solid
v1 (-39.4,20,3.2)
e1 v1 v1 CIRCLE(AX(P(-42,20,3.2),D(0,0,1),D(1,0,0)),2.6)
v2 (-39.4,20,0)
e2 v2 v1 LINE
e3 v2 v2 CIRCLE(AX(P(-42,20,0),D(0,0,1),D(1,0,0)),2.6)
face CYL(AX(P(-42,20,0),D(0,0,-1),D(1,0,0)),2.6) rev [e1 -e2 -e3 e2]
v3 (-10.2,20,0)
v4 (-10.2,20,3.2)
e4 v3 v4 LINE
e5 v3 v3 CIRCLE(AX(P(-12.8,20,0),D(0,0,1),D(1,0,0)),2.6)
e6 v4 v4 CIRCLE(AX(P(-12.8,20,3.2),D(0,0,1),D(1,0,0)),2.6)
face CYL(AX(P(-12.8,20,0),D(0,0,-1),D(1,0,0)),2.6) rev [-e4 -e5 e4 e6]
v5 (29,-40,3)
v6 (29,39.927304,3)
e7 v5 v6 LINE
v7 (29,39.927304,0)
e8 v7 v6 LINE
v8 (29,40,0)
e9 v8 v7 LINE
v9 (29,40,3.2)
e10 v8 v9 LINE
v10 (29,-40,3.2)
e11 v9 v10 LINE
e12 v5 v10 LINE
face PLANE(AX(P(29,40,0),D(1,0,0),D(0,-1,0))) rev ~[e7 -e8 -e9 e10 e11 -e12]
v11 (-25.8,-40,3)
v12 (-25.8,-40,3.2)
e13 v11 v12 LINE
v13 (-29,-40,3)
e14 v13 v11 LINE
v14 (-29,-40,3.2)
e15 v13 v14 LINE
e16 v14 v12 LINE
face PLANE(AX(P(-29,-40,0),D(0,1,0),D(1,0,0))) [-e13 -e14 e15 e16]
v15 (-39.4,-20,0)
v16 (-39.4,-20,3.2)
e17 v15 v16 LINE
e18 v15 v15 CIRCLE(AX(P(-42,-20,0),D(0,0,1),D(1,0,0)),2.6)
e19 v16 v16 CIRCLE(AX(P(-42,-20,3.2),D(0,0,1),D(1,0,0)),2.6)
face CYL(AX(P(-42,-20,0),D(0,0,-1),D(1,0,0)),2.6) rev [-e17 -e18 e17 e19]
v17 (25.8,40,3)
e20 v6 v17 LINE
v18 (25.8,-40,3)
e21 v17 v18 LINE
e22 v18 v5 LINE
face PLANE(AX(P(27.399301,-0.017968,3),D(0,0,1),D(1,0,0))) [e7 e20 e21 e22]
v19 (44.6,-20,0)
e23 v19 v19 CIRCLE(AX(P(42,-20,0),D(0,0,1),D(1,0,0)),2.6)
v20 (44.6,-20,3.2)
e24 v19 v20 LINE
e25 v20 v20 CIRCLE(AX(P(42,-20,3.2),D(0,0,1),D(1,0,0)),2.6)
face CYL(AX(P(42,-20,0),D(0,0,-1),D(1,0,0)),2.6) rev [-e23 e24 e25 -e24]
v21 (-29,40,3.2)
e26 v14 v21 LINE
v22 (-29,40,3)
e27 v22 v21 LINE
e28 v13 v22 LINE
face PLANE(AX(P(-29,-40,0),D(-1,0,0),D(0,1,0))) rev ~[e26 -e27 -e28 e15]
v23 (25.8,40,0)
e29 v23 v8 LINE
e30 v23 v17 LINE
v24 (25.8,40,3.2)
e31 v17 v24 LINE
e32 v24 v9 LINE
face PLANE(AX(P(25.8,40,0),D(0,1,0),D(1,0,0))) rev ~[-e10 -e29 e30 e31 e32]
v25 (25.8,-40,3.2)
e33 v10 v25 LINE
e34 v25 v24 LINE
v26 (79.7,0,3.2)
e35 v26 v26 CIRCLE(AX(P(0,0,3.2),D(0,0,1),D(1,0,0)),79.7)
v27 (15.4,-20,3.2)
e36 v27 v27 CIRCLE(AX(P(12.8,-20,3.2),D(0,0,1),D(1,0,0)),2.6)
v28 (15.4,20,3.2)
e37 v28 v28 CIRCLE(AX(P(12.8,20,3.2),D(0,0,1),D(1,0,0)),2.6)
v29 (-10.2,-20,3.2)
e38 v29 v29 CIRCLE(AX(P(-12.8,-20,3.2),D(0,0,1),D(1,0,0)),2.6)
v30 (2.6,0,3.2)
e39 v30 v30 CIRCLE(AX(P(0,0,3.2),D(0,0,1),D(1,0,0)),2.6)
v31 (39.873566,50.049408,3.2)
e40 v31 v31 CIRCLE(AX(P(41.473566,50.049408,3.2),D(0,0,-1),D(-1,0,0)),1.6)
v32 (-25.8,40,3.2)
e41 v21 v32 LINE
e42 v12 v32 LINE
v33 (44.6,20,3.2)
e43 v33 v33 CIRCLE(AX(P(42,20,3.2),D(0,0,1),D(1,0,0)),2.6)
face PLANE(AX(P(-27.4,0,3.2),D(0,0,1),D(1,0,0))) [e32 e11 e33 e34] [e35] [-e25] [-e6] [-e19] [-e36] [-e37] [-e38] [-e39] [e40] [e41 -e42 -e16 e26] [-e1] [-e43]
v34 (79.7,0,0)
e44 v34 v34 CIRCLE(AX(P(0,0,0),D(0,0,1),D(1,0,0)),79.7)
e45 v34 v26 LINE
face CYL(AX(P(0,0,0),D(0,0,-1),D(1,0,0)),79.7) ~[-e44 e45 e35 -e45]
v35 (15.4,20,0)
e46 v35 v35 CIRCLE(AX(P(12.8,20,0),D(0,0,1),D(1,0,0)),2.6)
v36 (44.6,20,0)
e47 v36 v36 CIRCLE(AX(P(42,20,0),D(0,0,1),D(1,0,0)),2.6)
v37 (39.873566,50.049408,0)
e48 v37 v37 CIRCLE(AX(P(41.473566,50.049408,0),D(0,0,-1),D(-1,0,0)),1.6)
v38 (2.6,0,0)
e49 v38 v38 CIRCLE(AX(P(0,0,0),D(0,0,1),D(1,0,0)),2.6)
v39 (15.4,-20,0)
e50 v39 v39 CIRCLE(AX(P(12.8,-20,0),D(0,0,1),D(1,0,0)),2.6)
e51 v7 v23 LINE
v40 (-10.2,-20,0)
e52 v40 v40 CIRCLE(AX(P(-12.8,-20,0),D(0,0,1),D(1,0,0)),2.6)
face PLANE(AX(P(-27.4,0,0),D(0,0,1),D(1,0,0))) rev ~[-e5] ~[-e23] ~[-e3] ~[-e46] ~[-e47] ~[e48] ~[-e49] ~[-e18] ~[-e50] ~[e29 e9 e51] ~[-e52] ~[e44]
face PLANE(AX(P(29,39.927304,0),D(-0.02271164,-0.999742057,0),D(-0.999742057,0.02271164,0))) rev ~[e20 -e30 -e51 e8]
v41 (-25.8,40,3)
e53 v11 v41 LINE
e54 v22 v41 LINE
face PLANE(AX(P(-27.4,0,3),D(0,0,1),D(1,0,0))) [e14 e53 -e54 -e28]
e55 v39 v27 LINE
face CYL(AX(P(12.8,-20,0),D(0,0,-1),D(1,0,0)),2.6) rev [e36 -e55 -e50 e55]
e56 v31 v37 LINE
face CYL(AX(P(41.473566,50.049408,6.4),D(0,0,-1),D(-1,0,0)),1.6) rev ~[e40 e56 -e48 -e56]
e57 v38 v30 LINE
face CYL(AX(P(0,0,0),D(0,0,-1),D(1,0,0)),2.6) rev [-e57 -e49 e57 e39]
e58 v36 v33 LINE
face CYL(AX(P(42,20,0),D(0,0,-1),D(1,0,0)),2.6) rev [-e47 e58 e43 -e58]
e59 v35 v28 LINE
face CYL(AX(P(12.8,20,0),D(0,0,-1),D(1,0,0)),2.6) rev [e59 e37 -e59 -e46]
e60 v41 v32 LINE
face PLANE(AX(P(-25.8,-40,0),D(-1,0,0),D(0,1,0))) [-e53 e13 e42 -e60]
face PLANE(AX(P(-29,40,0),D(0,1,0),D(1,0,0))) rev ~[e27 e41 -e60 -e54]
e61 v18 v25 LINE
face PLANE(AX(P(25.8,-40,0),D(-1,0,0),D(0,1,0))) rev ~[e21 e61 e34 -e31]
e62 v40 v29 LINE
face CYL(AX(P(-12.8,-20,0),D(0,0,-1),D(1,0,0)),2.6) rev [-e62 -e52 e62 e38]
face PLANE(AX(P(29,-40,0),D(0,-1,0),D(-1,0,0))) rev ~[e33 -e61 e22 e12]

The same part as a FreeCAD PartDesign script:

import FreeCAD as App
import Part
import Sketcher


def add_polygon(sketch, points):
    """Adds a closed chain of lines whose ends are joined by coincident constraints."""
    first, n = sketch.GeometryCount, len(points)
    for a, b in zip(points, points[1:] + points[:1]):
        sketch.addGeometry(Part.LineSegment(App.Vector(*a, 0), App.Vector(*b, 0)), False)
    for i in range(n):
        sketch.addConstraint(Sketcher.Constraint("Coincident", first + i, 2, first + (i + 1) % n, 1))

doc = App.newDocument("Part")
body = doc.addObject("PartDesign::Body", "Body")

# Sketch on XY plane
sketch1 = doc.addObject("Sketcher::SketchObject", "Sketch")
body.addObject(sketch1)
sketch1.AttachmentSupport = (doc.XY_Plane, [""])
sketch1.MapMode = "FlatFace"
sketch1.addGeometry(Part.Circle(App.Vector(0, 0, 0), App.Vector(0, 0, 1), 79.7), False)  # 0
sketch1.addGeometry(Part.Circle(App.Vector(-42, -20, 0), App.Vector(0, 0, 1), 2.6), False)  # 1
sketch1.addGeometry(Part.Circle(App.Vector(-12.8, -20, 0), App.Vector(0, 0, 1), 2.6), False)  # 2
sketch1.addGeometry(Part.Circle(App.Vector(12.8, -20, 0), App.Vector(0, 0, 1), 2.6), False)  # 3
sketch1.addGeometry(Part.Circle(App.Vector(42, -20, 0), App.Vector(0, 0, 1), 2.6), False)  # 4
add_polygon(sketch1, [(-25.8, -40), (-29, -40), (-29, 40), (-25.8, 40)])  # lines 5-8
sketch1.addGeometry(Part.Circle(App.Vector(-42, 20, 0), App.Vector(0, 0, 1), 2.6), False)  # 9
sketch1.addGeometry(Part.Circle(App.Vector(-12.8, 20, 0), App.Vector(0, 0, 1), 2.6), False)  # 10
sketch1.addGeometry(Part.Circle(App.Vector(0, 0, 0), App.Vector(0, 0, 1), 2.6), False)  # 11
add_polygon(sketch1, [(29, 40), (29, -40), (25.8, -40), (25.8, 40)])  # lines 12-15
sketch1.addGeometry(Part.Circle(App.Vector(12.8, 20, 0), App.Vector(0, 0, 1), 2.6), False)  # 16
sketch1.addGeometry(Part.Circle(App.Vector(42, 20, 0), App.Vector(0, 0, 1), 2.6), False)  # 17
sketch1.addConstraint([
    Sketcher.Constraint("Horizontal", 5),
    Sketcher.Constraint("Vertical", 6),
    Sketcher.Constraint("Horizontal", 7),
    Sketcher.Constraint("Vertical", 8),
    Sketcher.Constraint("Vertical", 12),
    Sketcher.Constraint("Horizontal", 13),
    Sketcher.Constraint("Vertical", 14),
    Sketcher.Constraint("Horizontal", 15),
    Sketcher.Constraint("Coincident", 0, 3, -1, 1),
    Sketcher.Constraint("Coincident", 11, 3, -1, 1),
    Sketcher.Constraint("Equal", 1, 2),
    Sketcher.Constraint("Equal", 2, 3),
    Sketcher.Constraint("Equal", 3, 4),
    Sketcher.Constraint("Equal", 4, 9),
    Sketcher.Constraint("Equal", 9, 10),
    Sketcher.Constraint("Equal", 10, 11),
    Sketcher.Constraint("Equal", 11, 16),
    Sketcher.Constraint("Equal", 16, 17),
    Sketcher.Constraint("Symmetric", 4, 3, 9, 3, -1, 1),
    Sketcher.Constraint("Symmetric", 3, 3, 10, 3, -1, 1),
    Sketcher.Constraint("Symmetric", 2, 3, 16, 3, -1, 1),
    Sketcher.Constraint("Symmetric", 1, 3, 17, 3, -1, 1),
    Sketcher.Constraint("Symmetric", 6, 2, 12, 2, -1, 1),
    Sketcher.Constraint("Symmetric", 8, 2, 14, 2, -1, 1),
    Sketcher.Constraint("Symmetric", 2, 3, 3, 3, -2),
    Sketcher.Constraint("Symmetric", 1, 3, 4, 3, -2),
    Sketcher.Constraint("Horizontal", 1, 3, 2, 3),
    Sketcher.Constraint("Horizontal", 8, 2, 12, 2),
    Sketcher.Constraint("Diameter", 0, 159.4),
    Sketcher.Constraint("Diameter", 1, 5.2),
    Sketcher.Constraint("DistanceY", 6, 1, 6, 2, 80.0),
    Sketcher.Constraint("DistanceX", 5, 2, 5, 1, 3.2),
    Sketcher.Constraint("DistanceX", 1, 3, -1, 1, 42.0),
    Sketcher.Constraint("DistanceY", 1, 3, -1, 1, 20.0),
    Sketcher.Constraint("DistanceX", 5, 2, -1, 1, 29.0),
    Sketcher.Constraint("DistanceX", 7, 2, 10, 3, 13.0),
])
pad1 = doc.addObject("PartDesign::Pad", "Pad")
body.addObject(pad1)
pad1.Profile = sketch1
pad1.Length = 3.2

# Sketch on XY plane
sketch2 = doc.addObject("Sketcher::SketchObject", "Sketch001")
body.addObject(sketch2)
sketch2.AttachmentSupport = (doc.XY_Plane, [""])
sketch2.MapMode = "FlatFace"
add_polygon(sketch2, [(-29, 40), (-29, -40), (-25.8, -40), (-25.8, 40)])  # lines 0-3
add_polygon(sketch2, [(25.8, 40), (25.8, -40), (29, -40), (29, 39.9)])  # lines 4-7
sketch2.addConstraint([
    Sketcher.Constraint("Vertical", 0),
    Sketcher.Constraint("Horizontal", 1),
    Sketcher.Constraint("Vertical", 2),
    Sketcher.Constraint("Horizontal", 3),
    Sketcher.Constraint("Vertical", 4),
    Sketcher.Constraint("Horizontal", 5),
    Sketcher.Constraint("Vertical", 6),
    Sketcher.Constraint("Symmetric", 2, 2, 4, 2, -1, 1),
    Sketcher.Constraint("Symmetric", 0, 2, 5, 2, -2),
    Sketcher.Constraint("Horizontal", 3, 2, 7, 2),
    Sketcher.Constraint("DistanceY", 0, 2, 0, 1, 80.0),
    Sketcher.Constraint("DistanceX", 1, 1, 1, 2, 3.2),
    Sketcher.Constraint("DistanceX", 0, 2, -1, 1, 29.0),
    Sketcher.Constraint("DistanceY", 6, 1, 6, 2, 79.927304),
])
pad2 = doc.addObject("PartDesign::Pad", "Pad001")
body.addObject(pad2)
pad2.Profile = sketch2
pad2.Length = 3

# Sketch on XY plane
sketch3 = doc.addObject("Sketcher::SketchObject", "Sketch002")
body.addObject(sketch3)
sketch3.AttachmentSupport = (doc.XY_Plane, [""])
sketch3.MapMode = "FlatFace"
sketch3.AttachmentOffset = App.Placement(App.Vector(0, 0, 3.2), App.Rotation())
sketch3.addGeometry(Part.Circle(App.Vector(41.5, 50, 0), App.Vector(0, 0, 1), 1.6), False)
sketch3.addConstraint([
    Sketcher.Constraint("Diameter", 0, 3.2),
    Sketcher.Constraint("DistanceX", -1, 1, 0, 3, 41.473566),
    Sketcher.Constraint("DistanceY", -1, 1, 0, 3, 50.049408),
])
doc.recompute()
hole = doc.addObject("PartDesign::Hole", "Hole")
body.addObject(hole)
hole.Profile = sketch3
hole.ThreadType = "None"
hole.Diameter = 3.2
hole.DepthType = "Dimension"
hole.Depth = 3.2
hole.DrillPoint = "Flat"

doc.recompute()
